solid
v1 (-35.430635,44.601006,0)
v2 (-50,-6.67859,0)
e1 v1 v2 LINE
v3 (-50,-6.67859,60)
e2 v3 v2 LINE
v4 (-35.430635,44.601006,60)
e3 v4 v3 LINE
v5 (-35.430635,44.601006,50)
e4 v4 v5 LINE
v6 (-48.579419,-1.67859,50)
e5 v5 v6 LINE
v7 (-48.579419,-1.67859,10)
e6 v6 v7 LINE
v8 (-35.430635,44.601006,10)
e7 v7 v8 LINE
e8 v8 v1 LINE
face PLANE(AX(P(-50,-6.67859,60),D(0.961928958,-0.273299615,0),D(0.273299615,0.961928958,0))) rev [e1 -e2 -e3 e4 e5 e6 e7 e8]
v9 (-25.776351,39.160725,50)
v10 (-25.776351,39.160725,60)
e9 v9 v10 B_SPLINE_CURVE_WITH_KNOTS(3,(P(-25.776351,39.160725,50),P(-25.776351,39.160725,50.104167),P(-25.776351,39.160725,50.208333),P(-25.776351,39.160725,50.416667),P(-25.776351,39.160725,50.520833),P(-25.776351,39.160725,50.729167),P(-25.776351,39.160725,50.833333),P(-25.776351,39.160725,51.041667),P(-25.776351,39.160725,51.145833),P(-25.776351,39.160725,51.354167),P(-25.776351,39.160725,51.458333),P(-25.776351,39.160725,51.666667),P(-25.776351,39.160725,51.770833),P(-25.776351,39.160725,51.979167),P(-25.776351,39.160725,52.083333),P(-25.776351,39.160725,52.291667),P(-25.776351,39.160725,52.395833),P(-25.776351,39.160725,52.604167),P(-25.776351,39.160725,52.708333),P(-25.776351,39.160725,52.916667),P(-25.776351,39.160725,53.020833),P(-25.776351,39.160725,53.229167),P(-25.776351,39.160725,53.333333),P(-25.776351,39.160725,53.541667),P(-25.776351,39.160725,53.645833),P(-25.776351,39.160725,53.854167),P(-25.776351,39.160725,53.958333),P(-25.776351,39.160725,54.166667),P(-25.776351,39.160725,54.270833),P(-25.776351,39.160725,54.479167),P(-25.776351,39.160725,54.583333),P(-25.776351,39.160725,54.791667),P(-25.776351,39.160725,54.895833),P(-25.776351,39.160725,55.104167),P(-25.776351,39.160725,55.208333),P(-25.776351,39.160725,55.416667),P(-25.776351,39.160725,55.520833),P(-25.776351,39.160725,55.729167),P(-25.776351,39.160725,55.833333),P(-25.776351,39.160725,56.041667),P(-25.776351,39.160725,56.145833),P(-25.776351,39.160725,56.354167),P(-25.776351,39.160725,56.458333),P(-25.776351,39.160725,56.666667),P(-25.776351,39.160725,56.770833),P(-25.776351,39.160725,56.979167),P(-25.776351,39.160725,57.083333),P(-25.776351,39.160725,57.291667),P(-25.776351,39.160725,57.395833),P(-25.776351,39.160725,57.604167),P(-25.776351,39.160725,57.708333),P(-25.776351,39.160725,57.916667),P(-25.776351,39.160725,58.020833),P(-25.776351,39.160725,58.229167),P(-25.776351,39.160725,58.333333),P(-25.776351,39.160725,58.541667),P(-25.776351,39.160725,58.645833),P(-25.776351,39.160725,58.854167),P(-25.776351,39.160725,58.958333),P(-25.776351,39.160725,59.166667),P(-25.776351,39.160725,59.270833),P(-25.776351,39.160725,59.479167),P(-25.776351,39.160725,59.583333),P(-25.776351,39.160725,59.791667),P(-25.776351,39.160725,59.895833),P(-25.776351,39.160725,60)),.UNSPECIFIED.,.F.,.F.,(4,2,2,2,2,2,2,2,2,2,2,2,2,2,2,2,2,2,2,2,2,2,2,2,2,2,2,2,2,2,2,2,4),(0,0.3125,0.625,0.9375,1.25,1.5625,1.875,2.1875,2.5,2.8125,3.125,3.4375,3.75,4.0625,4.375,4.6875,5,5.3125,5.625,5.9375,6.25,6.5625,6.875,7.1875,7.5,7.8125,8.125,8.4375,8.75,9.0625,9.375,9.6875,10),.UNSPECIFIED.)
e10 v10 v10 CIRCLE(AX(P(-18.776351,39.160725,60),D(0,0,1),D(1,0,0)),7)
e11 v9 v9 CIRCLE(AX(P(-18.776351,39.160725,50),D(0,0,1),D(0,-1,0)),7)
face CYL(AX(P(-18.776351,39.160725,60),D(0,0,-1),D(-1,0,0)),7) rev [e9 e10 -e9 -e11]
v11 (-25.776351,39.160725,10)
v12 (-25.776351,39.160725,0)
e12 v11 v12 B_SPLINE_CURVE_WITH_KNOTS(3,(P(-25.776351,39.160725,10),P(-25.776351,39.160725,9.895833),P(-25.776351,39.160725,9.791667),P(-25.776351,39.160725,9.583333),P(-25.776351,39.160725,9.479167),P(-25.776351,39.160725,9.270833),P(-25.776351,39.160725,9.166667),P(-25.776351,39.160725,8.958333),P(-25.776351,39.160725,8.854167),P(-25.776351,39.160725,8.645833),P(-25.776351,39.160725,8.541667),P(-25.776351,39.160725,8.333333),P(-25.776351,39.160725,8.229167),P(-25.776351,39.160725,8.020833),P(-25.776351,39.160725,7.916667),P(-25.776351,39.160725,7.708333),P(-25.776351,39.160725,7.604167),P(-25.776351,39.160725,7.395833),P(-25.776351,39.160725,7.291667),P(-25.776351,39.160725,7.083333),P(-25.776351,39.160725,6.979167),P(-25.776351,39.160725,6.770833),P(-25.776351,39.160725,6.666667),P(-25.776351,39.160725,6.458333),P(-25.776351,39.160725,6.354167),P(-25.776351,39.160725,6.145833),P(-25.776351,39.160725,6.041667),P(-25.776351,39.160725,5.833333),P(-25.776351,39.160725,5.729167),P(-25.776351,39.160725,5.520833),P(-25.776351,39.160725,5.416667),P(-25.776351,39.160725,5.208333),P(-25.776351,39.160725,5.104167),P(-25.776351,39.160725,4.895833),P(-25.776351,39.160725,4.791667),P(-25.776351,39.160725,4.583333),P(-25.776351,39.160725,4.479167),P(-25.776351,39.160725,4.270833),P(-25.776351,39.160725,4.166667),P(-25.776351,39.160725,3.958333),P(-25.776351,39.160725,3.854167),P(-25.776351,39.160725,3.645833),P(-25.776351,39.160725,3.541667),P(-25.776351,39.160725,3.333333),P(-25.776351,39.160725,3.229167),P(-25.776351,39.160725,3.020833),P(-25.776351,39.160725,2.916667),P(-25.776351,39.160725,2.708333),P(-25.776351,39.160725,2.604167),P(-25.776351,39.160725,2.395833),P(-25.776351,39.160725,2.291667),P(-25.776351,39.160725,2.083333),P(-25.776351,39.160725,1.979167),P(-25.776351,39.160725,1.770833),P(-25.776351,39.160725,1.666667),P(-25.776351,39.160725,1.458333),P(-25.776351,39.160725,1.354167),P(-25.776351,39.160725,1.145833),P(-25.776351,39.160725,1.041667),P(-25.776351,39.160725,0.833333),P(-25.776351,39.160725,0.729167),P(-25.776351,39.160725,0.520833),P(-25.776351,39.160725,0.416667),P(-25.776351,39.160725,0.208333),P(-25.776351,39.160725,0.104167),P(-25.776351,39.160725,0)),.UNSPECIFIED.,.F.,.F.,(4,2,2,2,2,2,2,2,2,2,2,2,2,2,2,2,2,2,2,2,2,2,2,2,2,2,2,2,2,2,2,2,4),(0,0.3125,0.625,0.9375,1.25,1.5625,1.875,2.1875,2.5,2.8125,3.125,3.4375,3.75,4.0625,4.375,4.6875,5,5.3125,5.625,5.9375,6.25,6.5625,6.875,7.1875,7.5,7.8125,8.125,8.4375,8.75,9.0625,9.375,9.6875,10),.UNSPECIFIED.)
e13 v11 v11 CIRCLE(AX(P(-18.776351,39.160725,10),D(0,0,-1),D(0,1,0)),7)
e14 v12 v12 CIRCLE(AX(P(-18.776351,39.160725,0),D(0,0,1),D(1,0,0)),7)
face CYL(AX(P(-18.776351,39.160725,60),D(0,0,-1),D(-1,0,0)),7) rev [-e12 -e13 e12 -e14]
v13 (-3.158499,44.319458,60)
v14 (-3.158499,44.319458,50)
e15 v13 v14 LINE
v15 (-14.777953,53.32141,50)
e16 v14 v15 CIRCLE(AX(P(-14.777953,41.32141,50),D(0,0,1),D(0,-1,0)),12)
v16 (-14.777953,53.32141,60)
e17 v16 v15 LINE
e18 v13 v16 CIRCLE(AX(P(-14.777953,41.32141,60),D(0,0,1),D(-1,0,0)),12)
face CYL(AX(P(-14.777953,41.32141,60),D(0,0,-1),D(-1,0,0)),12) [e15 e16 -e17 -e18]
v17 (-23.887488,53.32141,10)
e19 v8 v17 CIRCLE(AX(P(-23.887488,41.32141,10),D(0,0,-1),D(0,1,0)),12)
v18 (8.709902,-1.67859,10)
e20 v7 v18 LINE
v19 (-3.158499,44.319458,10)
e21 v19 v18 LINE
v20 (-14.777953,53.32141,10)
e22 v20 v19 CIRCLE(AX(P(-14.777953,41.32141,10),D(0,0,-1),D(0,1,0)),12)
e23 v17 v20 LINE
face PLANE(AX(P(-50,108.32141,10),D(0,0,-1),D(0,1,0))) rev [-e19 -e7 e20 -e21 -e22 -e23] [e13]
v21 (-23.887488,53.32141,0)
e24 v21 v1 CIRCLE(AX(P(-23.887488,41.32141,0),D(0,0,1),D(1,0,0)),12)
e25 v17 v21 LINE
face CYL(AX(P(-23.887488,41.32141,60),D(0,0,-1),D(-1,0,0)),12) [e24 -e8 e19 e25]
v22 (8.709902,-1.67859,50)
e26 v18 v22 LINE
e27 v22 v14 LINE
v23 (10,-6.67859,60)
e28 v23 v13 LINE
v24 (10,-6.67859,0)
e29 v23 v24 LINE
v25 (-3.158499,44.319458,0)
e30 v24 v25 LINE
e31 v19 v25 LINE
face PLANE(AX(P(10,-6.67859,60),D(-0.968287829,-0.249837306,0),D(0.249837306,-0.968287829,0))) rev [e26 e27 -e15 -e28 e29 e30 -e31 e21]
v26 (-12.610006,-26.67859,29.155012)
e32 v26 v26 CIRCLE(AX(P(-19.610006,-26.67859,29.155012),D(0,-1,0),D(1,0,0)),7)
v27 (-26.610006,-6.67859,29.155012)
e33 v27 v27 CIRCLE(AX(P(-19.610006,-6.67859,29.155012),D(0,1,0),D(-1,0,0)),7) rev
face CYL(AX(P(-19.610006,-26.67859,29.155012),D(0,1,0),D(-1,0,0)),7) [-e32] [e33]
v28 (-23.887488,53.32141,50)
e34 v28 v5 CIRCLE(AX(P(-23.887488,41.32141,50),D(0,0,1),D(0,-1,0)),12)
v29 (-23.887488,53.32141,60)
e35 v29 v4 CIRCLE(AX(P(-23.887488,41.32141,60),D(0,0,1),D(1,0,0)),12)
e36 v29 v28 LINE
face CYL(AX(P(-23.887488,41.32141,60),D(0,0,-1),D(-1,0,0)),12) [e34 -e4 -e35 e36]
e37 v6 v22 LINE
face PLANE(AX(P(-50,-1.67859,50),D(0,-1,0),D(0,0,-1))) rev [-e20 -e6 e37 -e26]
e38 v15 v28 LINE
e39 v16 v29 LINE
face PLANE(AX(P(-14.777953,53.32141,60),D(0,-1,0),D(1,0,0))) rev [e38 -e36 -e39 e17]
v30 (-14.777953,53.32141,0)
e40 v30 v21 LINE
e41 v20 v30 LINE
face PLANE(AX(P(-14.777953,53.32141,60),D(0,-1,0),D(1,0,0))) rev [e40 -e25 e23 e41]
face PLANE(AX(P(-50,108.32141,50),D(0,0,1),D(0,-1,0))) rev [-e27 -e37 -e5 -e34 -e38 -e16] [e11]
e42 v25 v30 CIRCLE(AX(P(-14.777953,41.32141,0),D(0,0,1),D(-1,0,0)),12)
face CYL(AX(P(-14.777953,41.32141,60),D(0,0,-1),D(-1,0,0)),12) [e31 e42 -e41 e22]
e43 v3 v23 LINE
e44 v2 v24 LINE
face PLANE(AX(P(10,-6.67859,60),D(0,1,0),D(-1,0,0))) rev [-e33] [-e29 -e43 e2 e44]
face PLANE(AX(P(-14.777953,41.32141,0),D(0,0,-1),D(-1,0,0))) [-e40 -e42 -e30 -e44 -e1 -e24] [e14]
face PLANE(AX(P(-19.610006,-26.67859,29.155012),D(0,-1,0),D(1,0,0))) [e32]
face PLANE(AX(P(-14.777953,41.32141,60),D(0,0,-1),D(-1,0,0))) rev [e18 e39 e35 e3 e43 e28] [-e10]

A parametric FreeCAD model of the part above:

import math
import FreeCAD as App
import Part
import Sketcher

doc = App.newDocument("Part")
body = doc.addObject("PartDesign::Body", "Body")

# Sketch on XY plane
sketch1 = body.newObject("Sketcher::SketchObject", "Sketch")
sketch1.AttachmentSupport = (doc.getObject("XY_Plane"), [""])
sketch1.MapMode = "FlatFace"
sketch1.addGeometry([
    Part.LineSegment(App.Vector(-35, 45, 0), App.Vector(-50, -7, 0)),  # 0
    Part.LineSegment(App.Vector(-50, -7, 0), App.Vector(10, -7, 0)),  # 1
    Part.LineSegment(App.Vector(10, -7, 0), App.Vector(-3, 44, 0)),  # 2
    Part.ArcOfCircle(Part.Circle(App.Vector(-15, 41, 0), App.Vector(0, 0, 1), 12), math.radians(14), math.radians(90)),  # 3
    Part.LineSegment(App.Vector(-15, 53, 0), App.Vector(-24, 53, 0)),  # 4
    Part.ArcOfCircle(Part.Circle(App.Vector(-24, 41, 0), App.Vector(0, 0, 1), 12), math.radians(90), math.radians(164)),  # 5
    Part.Circle(App.Vector(-19, 39, 0), App.Vector(0, 0, 1), 7),  # 6
], False)
sketch1.addConstraint([
    Sketcher.Constraint("Coincident", 0, 2, 1, 1),
    Sketcher.Constraint("Coincident", 1, 2, 2, 1),
    Sketcher.Constraint("Tangent", 2, 2, 3, 1),
    Sketcher.Constraint("Tangent", 3, 2, 4, 1),
    Sketcher.Constraint("Tangent", 4, 2, 5, 1),
    Sketcher.Constraint("Tangent", 5, 2, 0, 1),
    Sketcher.Constraint("Horizontal", 1),
    Sketcher.Constraint("Horizontal", 4),
    Sketcher.Constraint("Equal", 3, 5),
    Sketcher.Constraint("Diameter", 6, 14.0),
    Sketcher.Constraint("Radius", 3, 12.0),
    Sketcher.Constraint("DistanceX", 1, 1, 1, 2, 60.0),
    Sketcher.Constraint("DistanceX", 0, 2, -1, 1, 50.0),
    Sketcher.Constraint("DistanceY", 0, 2, 5, 3, 48.0),
    Sketcher.Constraint("DistanceX", 2, 2, -1, 1, 3.158499),
    Sketcher.Constraint("Distance", 0, 53.309129),
    Sketcher.Constraint("DistanceY", -1, 1, 3, 3, 41.32141),
    Sketcher.Constraint("DistanceX", 6, 3, -1, 1, 18.776351),
    Sketcher.Constraint("DistanceY", 6, 3, 5, 2, 5.440281),
])
pad1 = body.newObject("PartDesign::Pad", "Pad")
pad1.Profile = sketch1
pad1.Length = 60

# Sketch on YZ plane
sketch2 = body.newObject("Sketcher::SketchObject", "Sketch001")
sketch2.AttachmentSupport = (doc.getObject("YZ_Plane"), [""])
sketch2.MapMode = "FlatFace"
sketch2.addGeometry([
    Part.LineSegment(App.Vector(108, 50, 0), App.Vector(-2, 50, 0)),
    Part.LineSegment(App.Vector(-2, 50, 0), App.Vector(-2, 10, 0)),
    Part.LineSegment(App.Vector(-2, 10, 0), App.Vector(108, 10, 0)),
    Part.LineSegment(App.Vector(108, 10, 0), App.Vector(108, 50, 0)),
], False)
sketch2.addConstraint([
    Sketcher.Constraint("Coincident", 0, 2, 1, 1),
    Sketcher.Constraint("Coincident", 1, 2, 2, 1),
    Sketcher.Constraint("Coincident", 2, 2, 3, 1),
    Sketcher.Constraint("Coincident", 3, 2, 0, 1),
    Sketcher.Constraint("Horizontal", 0),
    Sketcher.Constraint("Vertical", 1),
    Sketcher.Constraint("Horizontal", 2),
    Sketcher.Constraint("Vertical", 3),
    Sketcher.Constraint("DistanceX", 0, 2, 0, 1, 110.0),
    Sketcher.Constraint("DistanceY", 1, 2, 1, 1, 40.0),
    Sketcher.Constraint("DistanceY", -1, 1, 0, 2, 50.0),
    Sketcher.Constraint("DistanceX", 0, 2, -1, 1, 1.67859),
])
pocket1 = body.newObject("PartDesign::Pocket", "Pocket")
pocket1.Profile = sketch2
pocket1.Type = "ThroughAll"
pocket1.Midplane = True

# Sketch on XZ plane
sketch3 = body.newObject("Sketcher::SketchObject", "Sketch002")
sketch3.AttachmentSupport = (doc.getObject("XZ_Plane"), [""])
sketch3.MapMode = "FlatFace"
sketch3.AttachmentOffset = App.Placement(App.Vector(0, 0, 6.67859), App.Rotation())
sketch3.addGeometry(Part.Circle(App.Vector(-20, 29, 0), App.Vector(0, 0, 1), 7), False)
sketch3.addConstraint([
    Sketcher.Constraint("Diameter", 0, 14.0),
    Sketcher.Constraint("DistanceX", 0, 3, -1, 1, 19.610006),
    Sketcher.Constraint("DistanceY", -1, 1, 0, 3, 29.155012),
])
pad2 = body.newObject("PartDesign::Pad", "Pad001")
pad2.Profile = sketch3
pad2.Length = 20

doc.recompute()
